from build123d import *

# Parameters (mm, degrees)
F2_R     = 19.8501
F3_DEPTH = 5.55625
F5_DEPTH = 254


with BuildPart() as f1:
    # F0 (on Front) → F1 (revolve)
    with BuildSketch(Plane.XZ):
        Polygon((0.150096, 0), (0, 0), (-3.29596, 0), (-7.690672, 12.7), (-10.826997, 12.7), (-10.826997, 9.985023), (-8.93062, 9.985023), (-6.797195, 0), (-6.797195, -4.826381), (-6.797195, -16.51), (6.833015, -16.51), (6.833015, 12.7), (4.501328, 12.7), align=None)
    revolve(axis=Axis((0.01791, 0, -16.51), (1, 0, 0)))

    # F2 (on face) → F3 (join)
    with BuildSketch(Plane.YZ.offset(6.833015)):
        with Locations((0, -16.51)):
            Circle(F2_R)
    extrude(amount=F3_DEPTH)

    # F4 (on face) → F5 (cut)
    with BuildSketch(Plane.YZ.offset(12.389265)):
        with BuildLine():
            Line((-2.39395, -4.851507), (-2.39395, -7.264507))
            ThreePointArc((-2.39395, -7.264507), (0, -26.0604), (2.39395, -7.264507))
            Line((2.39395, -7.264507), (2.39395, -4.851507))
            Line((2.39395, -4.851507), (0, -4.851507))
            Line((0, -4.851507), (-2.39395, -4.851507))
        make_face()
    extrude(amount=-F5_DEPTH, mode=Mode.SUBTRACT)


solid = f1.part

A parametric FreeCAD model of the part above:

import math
import FreeCAD as App
import Part
import Sketcher

V = App.Vector
Q = App.Units.Quantity


def add_polygon(sketch, points):
    """Adds a closed chain of lines whose ends are joined by coincident constraints."""
    first, n = sketch.GeometryCount, len(points)
    for a, b in zip(points, points[1:] + points[:1]):
        sketch.addGeometry(Part.LineSegment(App.Vector(*a, 0), App.Vector(*b, 0)), False)
    for i in range(n):
        sketch.addConstraint(Sketcher.Constraint("Coincident", first + i, 2, first + (i + 1) % n, 1))

doc = App.newDocument("Part")
body = doc.addObject("PartDesign::Body", "Body")

sketch1 = doc.addObject("Sketcher::SketchObject", "Sketch")
body.addObject(sketch1)
sketch1.AttachmentSupport = (doc.XZ_Plane, [""])
sketch1.MapMode = "FlatFace"
add_polygon(sketch1, [(0.150096, 0), (-3.29596, 0), (-7.690672, 12.7), (-10.826997, 12.7), (-10.826997, 9.985023), (-8.93062, 9.985023), (-6.797195, 0), (-6.797195, -16.51), (6.833015, -16.51), (6.833015, 12.7), (4.501328, 12.7)])
sketch1.addGeometry(Part.LineSegment(V(-10.826997, -16.51, 0), V(6.833015, -16.51, 0)), True)
sketch1.addConstraint([
    Sketcher.Constraint("Horizontal", 0),
    Sketcher.Constraint("Horizontal", 2),
    Sketcher.Constraint("Vertical", 3),
    Sketcher.Constraint("Horizontal", 4),
    Sketcher.Constraint("Vertical", 6),
    Sketcher.Constraint("Horizontal", 7),
    Sketcher.Constraint("Vertical", 8),
    Sketcher.Constraint("Horizontal", 9),
    Sketcher.Constraint("Horizontal", 11),
    Sketcher.Constraint("Coincident", 11, 2, 7, 2),
    Sketcher.Constraint("PointOnObject", 0, 2, -1),
    Sketcher.Constraint("PointOnObject", 5, 2, -1),
    Sketcher.Constraint("Horizontal", 2, 2, 8, 2),
    Sketcher.Constraint("Vertical", 3, 2, 11, 1),
    Sketcher.Constraint("DistanceY", 6, 2, 6, 1, Q("0.65 in")),
    Sketcher.Constraint("DistanceY", 8, 1, 8, 2, Q("1.15 in")),
    Sketcher.Constraint("DistanceX", 1, 2, 9, 2, Q("0.48 in")),
    Sketcher.Constraint("DistanceX", 7, 1, 7, 2, Q("13.63021 mm")),
    Sketcher.Constraint("Distance", 1, Q("13.43888 mm")),
    Sketcher.Constraint("DistanceX", 0, 2, 0, 1, Q("3.446056 mm")),
    Sketcher.Constraint("DistanceX", 2, 2, 2, 1, Q("3.136325 mm")),
    Sketcher.Constraint("DistanceX", 4, 1, 4, 2, Q("1.896377 mm")),
    Sketcher.Constraint("DistanceX", 9, 2, 9, 1, Q("2.331687 mm")),
    Sketcher.Constraint("DistanceY", 3, 2, 3, 1, Q("2.714977 mm")),
    Sketcher.Constraint("DistanceX", 0, 2, -1, 1, Q("3.29596 mm")),
])
revolution = doc.addObject("PartDesign::Revolution", "Revolution")
body.addObject(revolution)
revolution.Profile = sketch1
revolution.ReferenceAxis = (sketch1, ["Axis0"])
revolution.Angle = 360

sketch2 = doc.addObject("Sketcher::SketchObject", "Sketch001")
body.addObject(sketch2)
sketch2.AttachmentSupport = (doc.YZ_Plane, [""])
sketch2.MapMode = "FlatFace"
sketch2.AttachmentOffset = App.Placement(V(0, 0, 6.833015), App.Rotation())
sketch2.addGeometry(Part.Circle(V(0, -16.51, 0), V(0, 0, 1), 19.8501), False)
sketch2.addConstraint([
    Sketcher.Constraint("PointOnObject", 0, 3, -2),
    Sketcher.Constraint("Diameter", 0, Q("1.563 in")),
    Sketcher.Constraint("DistanceY", 0, 3, -1, 1, Q("0.65 in")),
])
pad1 = doc.addObject("PartDesign::Pad", "Pad")
body.addObject(pad1)
pad1.Profile = sketch2
pad1.Length = Q("0.21875 in")

sketch3 = doc.addObject("Sketcher::SketchObject", "Sketch002")
body.addObject(sketch3)
sketch3.AttachmentSupport = (doc.YZ_Plane, [""])
sketch3.MapMode = "FlatFace"
sketch3.AttachmentOffset = App.Placement(V(0, 0, 12.389265), App.Rotation())
sketch3.addGeometry([
    Part.LineSegment(V(-2.39395, -4.851507, 0), V(-2.39395, -7.264507, 0)),
    Part.ArcOfCircle(Part.Circle(V(0, -16.51, 0), V(0, 0, 1), 9.5504), math.radians(104.516861), math.radians(435.483139)),
    Part.LineSegment(V(2.39395, -7.264507, 0), V(2.39395, -4.851507, 0)),
    Part.LineSegment(V(2.39395, -4.851507, 0), V(-2.39395, -4.851507, 0)),
], False)
sketch3.addConstraint([
    Sketcher.Constraint("Coincident", 0, 2, 1, 1),
    Sketcher.Constraint("Coincident", 1, 2, 2, 1),
    Sketcher.Constraint("Coincident", 2, 2, 3, 1),
    Sketcher.Constraint("Coincident", 3, 2, 0, 1),
    Sketcher.Constraint("Vertical", 0),
    Sketcher.Constraint("Vertical", 2),
    Sketcher.Constraint("Horizontal", 3),
    Sketcher.Constraint("Symmetric", 0, 2, 1, 2, -2),
    Sketcher.Constraint("Radius", 1, Q("0.376 in")),
    Sketcher.Constraint("DistanceY", 0, 2, 0, 1, Q("0.095 in")),
    Sketcher.Constraint("DistanceY", 1, 3, -1, 1, Q("0.65 in")),
    Sketcher.Constraint("DistanceX", 3, 2, 3, 1, Q("0.1885 in")),
])
pocket1 = doc.addObject("PartDesign::Pocket", "Pocket")
body.addObject(pocket1)
pocket1.Profile = sketch3
pocket1.Length = Q("10 in")

doc.recompute()
